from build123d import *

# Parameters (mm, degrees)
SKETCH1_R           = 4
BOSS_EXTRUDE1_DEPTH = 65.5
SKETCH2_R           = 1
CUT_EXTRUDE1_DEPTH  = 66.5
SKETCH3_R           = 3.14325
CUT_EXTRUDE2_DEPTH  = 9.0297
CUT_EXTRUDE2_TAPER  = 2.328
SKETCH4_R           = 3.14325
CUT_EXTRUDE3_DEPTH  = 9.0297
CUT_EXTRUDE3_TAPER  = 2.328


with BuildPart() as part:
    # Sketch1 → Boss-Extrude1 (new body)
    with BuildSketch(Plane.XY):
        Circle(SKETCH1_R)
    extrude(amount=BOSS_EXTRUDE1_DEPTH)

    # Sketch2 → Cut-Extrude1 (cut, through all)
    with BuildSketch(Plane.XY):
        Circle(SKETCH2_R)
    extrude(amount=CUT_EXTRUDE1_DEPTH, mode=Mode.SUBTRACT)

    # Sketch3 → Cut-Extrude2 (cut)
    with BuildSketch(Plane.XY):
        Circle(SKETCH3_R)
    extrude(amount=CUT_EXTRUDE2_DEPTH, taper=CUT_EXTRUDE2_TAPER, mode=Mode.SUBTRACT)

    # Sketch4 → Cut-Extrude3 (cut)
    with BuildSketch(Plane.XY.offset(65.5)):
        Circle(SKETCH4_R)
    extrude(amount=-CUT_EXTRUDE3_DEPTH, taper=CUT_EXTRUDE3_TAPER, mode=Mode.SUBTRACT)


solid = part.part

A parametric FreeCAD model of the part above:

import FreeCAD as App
import Part
import Sketcher
from FreeCAD import Vector

doc = App.newDocument("Part")
body = doc.addObject("PartDesign::Body", "Body")

sketch1 = body.newObject("Sketcher::SketchObject", "Sketch")
sketch1.AttachmentSupport = (doc.getObject("XY_Plane"), [""])
sketch1.MapMode = "FlatFace"
sketch1.addGeometry(Part.Circle(Vector(0, 0, 0), Vector(0, 0, 1), 4), False)
sketch1.addConstraint(Sketcher.Constraint("Coincident", 0, 3, -1, 1))
sketch1.addConstraint(Sketcher.Constraint("Diameter", 0, 8.0))
pad1 = body.newObject("PartDesign::Pad", "Pad")
pad1.Profile = sketch1
pad1.Length = 65.5

sketch2 = body.newObject("Sketcher::SketchObject", "Sketch001")
sketch2.AttachmentSupport = (doc.getObject("XY_Plane"), [""])
sketch2.MapMode = "FlatFace"
sketch2.addGeometry(Part.Circle(Vector(0, 0, 0), Vector(0, 0, 1), 1), False)
sketch2.addConstraint(Sketcher.Constraint("Coincident", 0, 3, -1, 1))
sketch2.addConstraint(Sketcher.Constraint("Diameter", 0, 2.0))
pocket1 = body.newObject("PartDesign::Pocket", "Pocket")
pocket1.Profile = sketch2
pocket1.Type = "ThroughAll"
pocket1.Reversed = True

sketch3 = body.newObject("Sketcher::SketchObject", "Sketch002")
sketch3.AttachmentSupport = (doc.getObject("XY_Plane"), [""])
sketch3.MapMode = "FlatFace"
sketch3.addGeometry(Part.Circle(Vector(0, 0, 0), Vector(0, 0, 1), 3.1), False)
sketch3.addConstraint(Sketcher.Constraint("Coincident", 0, 3, -1, 1))
sketch3.addConstraint(Sketcher.Constraint("Diameter", 0, 6.2865))
pocket2 = body.newObject("PartDesign::Pocket", "Pocket001")
pocket2.Profile = sketch3
pocket2.Length = 9.0297
pocket2.Reversed = True
pocket2.TaperAngle = -2.328

sketch4 = body.newObject("Sketcher::SketchObject", "Sketch003")
sketch4.AttachmentSupport = (doc.getObject("XY_Plane"), [""])
sketch4.MapMode = "FlatFace"
sketch4.AttachmentOffset = App.Placement(Vector(0, 0, 65.5), App.Rotation())
sketch4.addGeometry(Part.Circle(Vector(0, 0, 0), Vector(0, 0, 1), 3.1), False)
sketch4.addConstraint(Sketcher.Constraint("Coincident", 0, 3, -1, 1))
sketch4.addConstraint(Sketcher.Constraint("Diameter", 0, 6.2865))
pocket3 = body.newObject("PartDesign::Pocket", "Pocket002")
pocket3.Profile = sketch4
pocket3.Length = 9.0297
pocket3.TaperAngle = -2.328

doc.recompute()
